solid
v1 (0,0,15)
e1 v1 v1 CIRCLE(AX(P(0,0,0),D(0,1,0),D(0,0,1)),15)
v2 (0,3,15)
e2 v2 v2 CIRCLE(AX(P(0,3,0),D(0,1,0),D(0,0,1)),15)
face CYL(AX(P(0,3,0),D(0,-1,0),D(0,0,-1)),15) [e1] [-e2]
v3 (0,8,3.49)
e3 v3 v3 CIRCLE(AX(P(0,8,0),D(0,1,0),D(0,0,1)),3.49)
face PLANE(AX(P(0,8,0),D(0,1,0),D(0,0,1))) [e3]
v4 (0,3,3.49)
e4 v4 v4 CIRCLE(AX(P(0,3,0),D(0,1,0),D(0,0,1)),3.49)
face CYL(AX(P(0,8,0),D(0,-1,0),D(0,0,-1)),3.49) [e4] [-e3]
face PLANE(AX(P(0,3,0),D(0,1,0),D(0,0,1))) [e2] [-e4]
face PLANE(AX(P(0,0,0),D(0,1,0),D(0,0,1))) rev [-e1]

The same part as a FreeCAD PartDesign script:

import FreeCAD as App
import Part
import Sketcher
from FreeCAD import Vector

doc = App.newDocument("Part")
body = doc.addObject("PartDesign::Body", "Body")

# Sketch on XZ plane
sketch1 = body.newObject("Sketcher::SketchObject", "Sketch")
sketch1.AttachmentSupport = (doc.getObject("XZ_Plane"), [""])
sketch1.MapMode = "FlatFace"
sketch1.addGeometry(Part.Circle(Vector(0, 0, 0), Vector(0, 0, 1), 15), False)
sketch1.addConstraint(Sketcher.Constraint("Coincident", 0, 3, -1, 1))
sketch1.addConstraint(Sketcher.Constraint("Diameter", 0, 30.0))
pad1 = body.newObject("PartDesign::Pad", "Pad")
pad1.Profile = sketch1
pad1.Length = 3
pad1.Reversed = True

# Sketch on XZ plane
sketch2 = body.newObject("Sketcher::SketchObject", "Sketch001")
sketch2.AttachmentSupport = (doc.getObject("XZ_Plane"), [""])
sketch2.MapMode = "FlatFace"
sketch2.AttachmentOffset = App.Placement(Vector(0, 0, -3), App.Rotation())
sketch2.addGeometry(Part.Circle(Vector(0, 0, 0), Vector(0, 0, 1), 3.49), False)
sketch2.addConstraint(Sketcher.Constraint("Coincident", 0, 3, -1, 1))
sketch2.addConstraint(Sketcher.Constraint("Diameter", 0, 6.98))
pad2 = body.newObject("PartDesign::Pad", "Pad001")
pad2.Profile = sketch2
pad2.Length = 5
pad2.Reversed = True

doc.recompute()
